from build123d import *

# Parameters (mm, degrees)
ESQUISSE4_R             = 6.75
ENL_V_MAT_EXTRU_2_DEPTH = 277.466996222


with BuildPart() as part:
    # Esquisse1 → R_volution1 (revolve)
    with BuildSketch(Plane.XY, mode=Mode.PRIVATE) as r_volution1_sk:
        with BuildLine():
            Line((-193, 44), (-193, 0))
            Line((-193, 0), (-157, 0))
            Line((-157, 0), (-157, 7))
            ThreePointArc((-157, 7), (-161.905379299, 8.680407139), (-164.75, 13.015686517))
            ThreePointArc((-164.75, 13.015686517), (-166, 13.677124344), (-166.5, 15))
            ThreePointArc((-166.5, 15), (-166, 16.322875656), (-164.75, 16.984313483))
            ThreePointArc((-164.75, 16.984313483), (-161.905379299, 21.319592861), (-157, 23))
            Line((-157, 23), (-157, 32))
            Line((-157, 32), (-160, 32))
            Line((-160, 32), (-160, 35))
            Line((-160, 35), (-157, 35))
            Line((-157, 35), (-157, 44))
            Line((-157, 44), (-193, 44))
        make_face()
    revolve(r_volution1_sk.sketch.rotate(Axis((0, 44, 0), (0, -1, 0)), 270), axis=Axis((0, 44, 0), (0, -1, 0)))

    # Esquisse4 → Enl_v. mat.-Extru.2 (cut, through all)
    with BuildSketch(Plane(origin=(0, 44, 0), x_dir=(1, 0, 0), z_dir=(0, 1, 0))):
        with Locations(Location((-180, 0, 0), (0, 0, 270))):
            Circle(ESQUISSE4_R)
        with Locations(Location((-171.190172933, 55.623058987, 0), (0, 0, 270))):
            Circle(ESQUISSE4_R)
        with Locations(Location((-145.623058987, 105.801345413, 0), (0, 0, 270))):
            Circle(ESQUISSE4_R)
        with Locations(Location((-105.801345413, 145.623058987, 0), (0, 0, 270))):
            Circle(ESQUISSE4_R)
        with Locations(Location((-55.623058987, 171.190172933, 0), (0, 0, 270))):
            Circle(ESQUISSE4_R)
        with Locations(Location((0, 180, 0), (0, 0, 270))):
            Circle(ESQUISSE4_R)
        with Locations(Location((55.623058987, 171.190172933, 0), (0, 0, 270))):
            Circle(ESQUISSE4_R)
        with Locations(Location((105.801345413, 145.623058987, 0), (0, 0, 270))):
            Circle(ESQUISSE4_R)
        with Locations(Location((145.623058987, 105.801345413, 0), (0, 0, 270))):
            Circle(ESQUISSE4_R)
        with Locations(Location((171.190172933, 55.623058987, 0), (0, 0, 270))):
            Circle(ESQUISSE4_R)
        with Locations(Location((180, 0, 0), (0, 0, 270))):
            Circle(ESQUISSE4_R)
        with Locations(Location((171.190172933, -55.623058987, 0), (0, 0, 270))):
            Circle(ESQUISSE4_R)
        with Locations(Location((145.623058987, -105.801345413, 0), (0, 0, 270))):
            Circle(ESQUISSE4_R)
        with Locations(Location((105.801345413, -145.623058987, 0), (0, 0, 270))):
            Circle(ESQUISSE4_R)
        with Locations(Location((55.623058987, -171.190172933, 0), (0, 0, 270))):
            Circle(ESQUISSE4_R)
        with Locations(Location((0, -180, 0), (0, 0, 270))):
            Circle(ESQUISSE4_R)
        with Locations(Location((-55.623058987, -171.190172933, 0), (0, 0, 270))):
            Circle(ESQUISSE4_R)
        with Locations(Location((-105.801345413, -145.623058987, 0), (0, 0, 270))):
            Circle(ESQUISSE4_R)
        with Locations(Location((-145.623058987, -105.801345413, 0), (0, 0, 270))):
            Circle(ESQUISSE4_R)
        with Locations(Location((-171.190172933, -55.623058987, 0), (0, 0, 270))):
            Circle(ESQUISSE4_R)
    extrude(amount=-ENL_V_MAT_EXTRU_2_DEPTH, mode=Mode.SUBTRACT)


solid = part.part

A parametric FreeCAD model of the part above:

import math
import FreeCAD as App
import Part
import Sketcher

V = App.Vector
Q = App.Units.Quantity

doc = App.newDocument("Part")
params = doc.addObject("Spreadsheet::Sheet", "Params")
for row, (alias, value) in enumerate([
    ("sketch1_radius", "8 mm"),
    ("sketch1_radius2", "2 mm"),
    ("sketch1_width", "36 mm"),
    ("sketch1_width2", "3 mm"),
    ("sketch1_height", "44 mm"),
    ("revolution_angle", "360 deg"),
    ("sketch2_diameter", "13.5 mm"),
], start=1):
    params.set(f"A{row}", alias)
    params.set(f"B{row}", "=" + value)
    params.setAlias(f"B{row}", alias)

body = doc.addObject("PartDesign::Body", "Body")

sketch1 = doc.addObject("Sketcher::SketchObject", "Sketch")
body.addObject(sketch1)
sketch1.AttachmentSupport = (doc.XY_Plane, [""])
sketch1.MapMode = "FlatFace"
sketch1.addGeometry([
    Part.LineSegment(V(-193, 44, 0), V(-193, 0, 0)),
    Part.LineSegment(V(-193, 0, 0), V(-157, 0, 0)),
    Part.LineSegment(V(-157, 0, 0), V(-157, 7, 0)),
    Part.ArcOfCircle(Part.Circle(V(-157, 15, 0), V(0, 0, 1), 8), math.radians(-165.638488), math.radians(-90)),
    Part.ArcOfCircle(Part.Circle(V(-164.5, 15, 0), V(0, 0, 1), 2), math.radians(180), math.radians(262.819244)),
    Part.ArcOfCircle(Part.Circle(V(-164.5, 15, 0), V(0, 0, 1), 2), math.radians(97.180756), math.radians(180)),
    Part.ArcOfCircle(Part.Circle(V(-157, 15, 0), V(0, 0, 1), 8), math.radians(90), math.radians(165.638488)),
    Part.LineSegment(V(-157, 23, 0), V(-157, 32, 0)),
    Part.LineSegment(V(-157, 32, 0), V(-160, 32, 0)),
    Part.LineSegment(V(-160, 32, 0), V(-160, 35, 0)),
    Part.LineSegment(V(-160, 35, 0), V(-157, 35, 0)),
    Part.LineSegment(V(-157, 35, 0), V(-157, 44, 0)),
    Part.LineSegment(V(-157, 44, 0), V(-193, 44, 0)),
], False)
sketch1.addConstraint([
    Sketcher.Constraint("Coincident", 0, 2, 1, 1),
    Sketcher.Constraint("Coincident", 1, 2, 2, 1),
    Sketcher.Constraint("Coincident", 2, 2, 3, 2),
    Sketcher.Constraint("Coincident", 3, 1, 4, 2),
    Sketcher.Constraint("Tangent", 4, 1, 5, 2),
    Sketcher.Constraint("Coincident", 5, 1, 6, 2),
    Sketcher.Constraint("Coincident", 6, 1, 7, 1),
    Sketcher.Constraint("Coincident", 7, 2, 8, 1),
    Sketcher.Constraint("Coincident", 8, 2, 9, 1),
    Sketcher.Constraint("Coincident", 9, 2, 10, 1),
    Sketcher.Constraint("Coincident", 10, 2, 11, 1),
    Sketcher.Constraint("Coincident", 11, 2, 12, 1),
    Sketcher.Constraint("Coincident", 12, 2, 0, 1),
    Sketcher.Constraint("Vertical", 0),
    Sketcher.Constraint("Horizontal", 1),
    Sketcher.Constraint("Vertical", 2),
    Sketcher.Constraint("Vertical", 7),
    Sketcher.Constraint("Horizontal", 8),
    Sketcher.Constraint("Vertical", 9),
    Sketcher.Constraint("Horizontal", 10),
    Sketcher.Constraint("Vertical", 11),
    Sketcher.Constraint("Horizontal", 12),
    Sketcher.Constraint("Coincident", 6, 3, 3, 3),
    Sketcher.Constraint("Equal", 4, 5),
    Sketcher.Constraint("Equal", 3, 6),
    Sketcher.Constraint("PointOnObject", 0, 2, -1),
    Sketcher.Constraint("Horizontal", 3, 3, 4, 3),
    Sketcher.Constraint("Horizontal", 6, 3, 4, 1),
    Sketcher.Constraint("Vertical", 6, 3, 1, 2),
    Sketcher.Constraint("Vertical", 2, 2, 6, 1),
    Sketcher.Constraint("Vertical", 7, 2, 10, 2),
    Sketcher.Constraint("Equal", 10, 9),
    Sketcher.Constraint("Equal", 7, 11),
    Sketcher.Constraint("Radius", 3, Q("8 mm")),
    Sketcher.Constraint("Radius", 4, Q("2 mm")),
    Sketcher.Constraint("DistanceX", 1, 1, 1, 2, Q("36 mm")),
    Sketcher.Constraint("DistanceX", 8, 2, 8, 1, Q("3 mm")),
    Sketcher.Constraint("DistanceY", 0, 2, 0, 1, Q("44 mm")),
    Sketcher.Constraint("DistanceY", 2, 1, 2, 2, Q("7 mm")),
    Sketcher.Constraint("DistanceX", 3, 3, -1, 1, Q("157 mm")),
    Sketcher.Constraint("DistanceX", 4, 3, -1, 1, Q("164.5 mm")),
])
sketch1.setExpression("Constraints[33]", "Params.sketch1_radius")
sketch1.setExpression("Constraints[34]", "Params.sketch1_radius2")
sketch1.setExpression("Constraints[35]", "Params.sketch1_width")
sketch1.setExpression("Constraints[36]", "Params.sketch1_width2")
sketch1.setExpression("Constraints[37]", "Params.sketch1_height")
revolution = doc.addObject("PartDesign::Revolution", "Revolution")
body.addObject(revolution)
revolution.Profile = sketch1
revolution.ReferenceAxis = (sketch1, ["V_Axis"])
revolution.setExpression("Angle", "Params.revolution_angle")

sketch2 = doc.addObject("Sketcher::SketchObject", "Sketch001")
body.addObject(sketch2)
sketch2.AttachmentSupport = (doc.XZ_Plane, [""])
sketch2.MapMode = "FlatFace"
sketch2.AttachmentOffset = App.Placement(V(0, 0, -44), App.Rotation())
sketch2.addGeometry([
    Part.Circle(V(-180, 0, 0), V(0, 0, 1), 6.75),
    Part.Circle(V(-171.190173, -55.623059, 0), V(0, 0, 1), 6.75),
    Part.Circle(V(-145.623059, -105.801345, 0), V(0, 0, 1), 6.75),
    Part.Circle(V(-105.801345, -145.623059, 0), V(0, 0, 1), 6.75),
    Part.Circle(V(-55.623059, -171.190173, 0), V(0, 0, 1), 6.75),
    Part.Circle(V(0, -180, 0), V(0, 0, 1), 6.75),
    Part.Circle(V(55.623059, -171.190173, 0), V(0, 0, 1), 6.75),
    Part.Circle(V(105.801345, -145.623059, 0), V(0, 0, 1), 6.75),
    Part.Circle(V(145.623059, -105.801345, 0), V(0, 0, 1), 6.75),
    Part.Circle(V(171.190173, -55.623059, 0), V(0, 0, 1), 6.75),
    Part.Circle(V(180, 0, 0), V(0, 0, 1), 6.75),
    Part.Circle(V(171.190173, 55.623059, 0), V(0, 0, 1), 6.75),
    Part.Circle(V(145.623059, 105.801345, 0), V(0, 0, 1), 6.75),
    Part.Circle(V(105.801345, 145.623059, 0), V(0, 0, 1), 6.75),
    Part.Circle(V(55.623059, 171.190173, 0), V(0, 0, 1), 6.75),
    Part.Circle(V(0, 180, 0), V(0, 0, 1), 6.75),
    Part.Circle(V(-55.623059, 171.190173, 0), V(0, 0, 1), 6.75),
    Part.Circle(V(-105.801345, 145.623059, 0), V(0, 0, 1), 6.75),
    Part.Circle(V(-145.623059, 105.801345, 0), V(0, 0, 1), 6.75),
    Part.Circle(V(-171.190173, 55.623059, 0), V(0, 0, 1), 6.75),
], False)
sketch2.addConstraint([
    Sketcher.Constraint("Equal", 0, 1),
    Sketcher.Constraint("Equal", 1, 2),
    Sketcher.Constraint("Equal", 2, 3),
    Sketcher.Constraint("Equal", 3, 4),
    Sketcher.Constraint("Equal", 4, 5),
    Sketcher.Constraint("Equal", 5, 6),
    Sketcher.Constraint("Equal", 6, 7),
    Sketcher.Constraint("Equal", 7, 8),
    Sketcher.Constraint("Equal", 8, 9),
    Sketcher.Constraint("Equal", 9, 10),
    Sketcher.Constraint("Equal", 10, 11),
    Sketcher.Constraint("Equal", 11, 12),
    Sketcher.Constraint("Equal", 12, 13),
    Sketcher.Constraint("Equal", 13, 14),
    Sketcher.Constraint("Equal", 14, 15),
    Sketcher.Constraint("Equal", 15, 16),
    Sketcher.Constraint("Equal", 16, 17),
    Sketcher.Constraint("Equal", 17, 18),
    Sketcher.Constraint("Equal", 18, 19),
    Sketcher.Constraint("Symmetric", 0, 3, 10, 3, -1, 1),
    Sketcher.Constraint("Symmetric", 1, 3, 11, 3, -1, 1),
    Sketcher.Constraint("Symmetric", 2, 3, 12, 3, -1, 1),
    Sketcher.Constraint("Symmetric", 3, 3, 13, 3, -1, 1),
    Sketcher.Constraint("Symmetric", 4, 3, 14, 3, -1, 1),
    Sketcher.Constraint("Symmetric", 5, 3, 15, 3, -1, 1),
    Sketcher.Constraint("Symmetric", 6, 3, 16, 3, -1, 1),
    Sketcher.Constraint("Symmetric", 7, 3, 17, 3, -1, 1),
    Sketcher.Constraint("Symmetric", 8, 3, 18, 3, -1, 1),
    Sketcher.Constraint("Symmetric", 9, 3, 19, 3, -1, 1),
    Sketcher.Constraint("Symmetric", 4, 3, 6, 3, -2),
    Sketcher.Constraint("Symmetric", 3, 3, 7, 3, -2),
    Sketcher.Constraint("Symmetric", 2, 3, 8, 3, -2),
    Sketcher.Constraint("Symmetric", 1, 3, 9, 3, -2),
    Sketcher.Constraint("PointOnObject", 0, 3, -1),
    Sketcher.Constraint("PointOnObject", 5, 3, -2),
    Sketcher.Constraint("Diameter", 0, Q("13.5 mm")),
    Sketcher.Constraint("DistanceX", 0, 3, -1, 1, Q("180 mm")),
    Sketcher.Constraint("DistanceY", 5, 3, -1, 1, Q("180 mm")),
    Sketcher.Constraint("DistanceY", 3, 3, 1, 3, Q("90 mm")),
    Sketcher.Constraint("DistanceX", 2, 3, 4, 3, Q("90 mm")),
    Sketcher.Constraint("DistanceY", 1, 3, -1, 1, Q("55.623059 mm")),
    Sketcher.Constraint("DistanceX", 2, 3, -1, 1, Q("145.623059 mm")),
    Sketcher.Constraint("DistanceX", 1, 3, 6, 3, Q("226.813232 mm")),
    Sketcher.Constraint("DistanceX", 3, 3, 7, 3, Q("211.602691 mm")),
    Sketcher.Constraint("DistanceY", 6, 3, 11, 3, Q("226.813232 mm")),
    Sketcher.Constraint("DistanceY", 8, 3, 12, 3, Q("211.602691 mm")),
])
sketch2.setExpression("Constraints[35]", "Params.sketch2_diameter")
pocket1 = doc.addObject("PartDesign::Pocket", "Pocket")
body.addObject(pocket1)
pocket1.Profile = sketch2
pocket1.Type = "ThroughAll"
pocket1.Reversed = True

doc.recompute()
